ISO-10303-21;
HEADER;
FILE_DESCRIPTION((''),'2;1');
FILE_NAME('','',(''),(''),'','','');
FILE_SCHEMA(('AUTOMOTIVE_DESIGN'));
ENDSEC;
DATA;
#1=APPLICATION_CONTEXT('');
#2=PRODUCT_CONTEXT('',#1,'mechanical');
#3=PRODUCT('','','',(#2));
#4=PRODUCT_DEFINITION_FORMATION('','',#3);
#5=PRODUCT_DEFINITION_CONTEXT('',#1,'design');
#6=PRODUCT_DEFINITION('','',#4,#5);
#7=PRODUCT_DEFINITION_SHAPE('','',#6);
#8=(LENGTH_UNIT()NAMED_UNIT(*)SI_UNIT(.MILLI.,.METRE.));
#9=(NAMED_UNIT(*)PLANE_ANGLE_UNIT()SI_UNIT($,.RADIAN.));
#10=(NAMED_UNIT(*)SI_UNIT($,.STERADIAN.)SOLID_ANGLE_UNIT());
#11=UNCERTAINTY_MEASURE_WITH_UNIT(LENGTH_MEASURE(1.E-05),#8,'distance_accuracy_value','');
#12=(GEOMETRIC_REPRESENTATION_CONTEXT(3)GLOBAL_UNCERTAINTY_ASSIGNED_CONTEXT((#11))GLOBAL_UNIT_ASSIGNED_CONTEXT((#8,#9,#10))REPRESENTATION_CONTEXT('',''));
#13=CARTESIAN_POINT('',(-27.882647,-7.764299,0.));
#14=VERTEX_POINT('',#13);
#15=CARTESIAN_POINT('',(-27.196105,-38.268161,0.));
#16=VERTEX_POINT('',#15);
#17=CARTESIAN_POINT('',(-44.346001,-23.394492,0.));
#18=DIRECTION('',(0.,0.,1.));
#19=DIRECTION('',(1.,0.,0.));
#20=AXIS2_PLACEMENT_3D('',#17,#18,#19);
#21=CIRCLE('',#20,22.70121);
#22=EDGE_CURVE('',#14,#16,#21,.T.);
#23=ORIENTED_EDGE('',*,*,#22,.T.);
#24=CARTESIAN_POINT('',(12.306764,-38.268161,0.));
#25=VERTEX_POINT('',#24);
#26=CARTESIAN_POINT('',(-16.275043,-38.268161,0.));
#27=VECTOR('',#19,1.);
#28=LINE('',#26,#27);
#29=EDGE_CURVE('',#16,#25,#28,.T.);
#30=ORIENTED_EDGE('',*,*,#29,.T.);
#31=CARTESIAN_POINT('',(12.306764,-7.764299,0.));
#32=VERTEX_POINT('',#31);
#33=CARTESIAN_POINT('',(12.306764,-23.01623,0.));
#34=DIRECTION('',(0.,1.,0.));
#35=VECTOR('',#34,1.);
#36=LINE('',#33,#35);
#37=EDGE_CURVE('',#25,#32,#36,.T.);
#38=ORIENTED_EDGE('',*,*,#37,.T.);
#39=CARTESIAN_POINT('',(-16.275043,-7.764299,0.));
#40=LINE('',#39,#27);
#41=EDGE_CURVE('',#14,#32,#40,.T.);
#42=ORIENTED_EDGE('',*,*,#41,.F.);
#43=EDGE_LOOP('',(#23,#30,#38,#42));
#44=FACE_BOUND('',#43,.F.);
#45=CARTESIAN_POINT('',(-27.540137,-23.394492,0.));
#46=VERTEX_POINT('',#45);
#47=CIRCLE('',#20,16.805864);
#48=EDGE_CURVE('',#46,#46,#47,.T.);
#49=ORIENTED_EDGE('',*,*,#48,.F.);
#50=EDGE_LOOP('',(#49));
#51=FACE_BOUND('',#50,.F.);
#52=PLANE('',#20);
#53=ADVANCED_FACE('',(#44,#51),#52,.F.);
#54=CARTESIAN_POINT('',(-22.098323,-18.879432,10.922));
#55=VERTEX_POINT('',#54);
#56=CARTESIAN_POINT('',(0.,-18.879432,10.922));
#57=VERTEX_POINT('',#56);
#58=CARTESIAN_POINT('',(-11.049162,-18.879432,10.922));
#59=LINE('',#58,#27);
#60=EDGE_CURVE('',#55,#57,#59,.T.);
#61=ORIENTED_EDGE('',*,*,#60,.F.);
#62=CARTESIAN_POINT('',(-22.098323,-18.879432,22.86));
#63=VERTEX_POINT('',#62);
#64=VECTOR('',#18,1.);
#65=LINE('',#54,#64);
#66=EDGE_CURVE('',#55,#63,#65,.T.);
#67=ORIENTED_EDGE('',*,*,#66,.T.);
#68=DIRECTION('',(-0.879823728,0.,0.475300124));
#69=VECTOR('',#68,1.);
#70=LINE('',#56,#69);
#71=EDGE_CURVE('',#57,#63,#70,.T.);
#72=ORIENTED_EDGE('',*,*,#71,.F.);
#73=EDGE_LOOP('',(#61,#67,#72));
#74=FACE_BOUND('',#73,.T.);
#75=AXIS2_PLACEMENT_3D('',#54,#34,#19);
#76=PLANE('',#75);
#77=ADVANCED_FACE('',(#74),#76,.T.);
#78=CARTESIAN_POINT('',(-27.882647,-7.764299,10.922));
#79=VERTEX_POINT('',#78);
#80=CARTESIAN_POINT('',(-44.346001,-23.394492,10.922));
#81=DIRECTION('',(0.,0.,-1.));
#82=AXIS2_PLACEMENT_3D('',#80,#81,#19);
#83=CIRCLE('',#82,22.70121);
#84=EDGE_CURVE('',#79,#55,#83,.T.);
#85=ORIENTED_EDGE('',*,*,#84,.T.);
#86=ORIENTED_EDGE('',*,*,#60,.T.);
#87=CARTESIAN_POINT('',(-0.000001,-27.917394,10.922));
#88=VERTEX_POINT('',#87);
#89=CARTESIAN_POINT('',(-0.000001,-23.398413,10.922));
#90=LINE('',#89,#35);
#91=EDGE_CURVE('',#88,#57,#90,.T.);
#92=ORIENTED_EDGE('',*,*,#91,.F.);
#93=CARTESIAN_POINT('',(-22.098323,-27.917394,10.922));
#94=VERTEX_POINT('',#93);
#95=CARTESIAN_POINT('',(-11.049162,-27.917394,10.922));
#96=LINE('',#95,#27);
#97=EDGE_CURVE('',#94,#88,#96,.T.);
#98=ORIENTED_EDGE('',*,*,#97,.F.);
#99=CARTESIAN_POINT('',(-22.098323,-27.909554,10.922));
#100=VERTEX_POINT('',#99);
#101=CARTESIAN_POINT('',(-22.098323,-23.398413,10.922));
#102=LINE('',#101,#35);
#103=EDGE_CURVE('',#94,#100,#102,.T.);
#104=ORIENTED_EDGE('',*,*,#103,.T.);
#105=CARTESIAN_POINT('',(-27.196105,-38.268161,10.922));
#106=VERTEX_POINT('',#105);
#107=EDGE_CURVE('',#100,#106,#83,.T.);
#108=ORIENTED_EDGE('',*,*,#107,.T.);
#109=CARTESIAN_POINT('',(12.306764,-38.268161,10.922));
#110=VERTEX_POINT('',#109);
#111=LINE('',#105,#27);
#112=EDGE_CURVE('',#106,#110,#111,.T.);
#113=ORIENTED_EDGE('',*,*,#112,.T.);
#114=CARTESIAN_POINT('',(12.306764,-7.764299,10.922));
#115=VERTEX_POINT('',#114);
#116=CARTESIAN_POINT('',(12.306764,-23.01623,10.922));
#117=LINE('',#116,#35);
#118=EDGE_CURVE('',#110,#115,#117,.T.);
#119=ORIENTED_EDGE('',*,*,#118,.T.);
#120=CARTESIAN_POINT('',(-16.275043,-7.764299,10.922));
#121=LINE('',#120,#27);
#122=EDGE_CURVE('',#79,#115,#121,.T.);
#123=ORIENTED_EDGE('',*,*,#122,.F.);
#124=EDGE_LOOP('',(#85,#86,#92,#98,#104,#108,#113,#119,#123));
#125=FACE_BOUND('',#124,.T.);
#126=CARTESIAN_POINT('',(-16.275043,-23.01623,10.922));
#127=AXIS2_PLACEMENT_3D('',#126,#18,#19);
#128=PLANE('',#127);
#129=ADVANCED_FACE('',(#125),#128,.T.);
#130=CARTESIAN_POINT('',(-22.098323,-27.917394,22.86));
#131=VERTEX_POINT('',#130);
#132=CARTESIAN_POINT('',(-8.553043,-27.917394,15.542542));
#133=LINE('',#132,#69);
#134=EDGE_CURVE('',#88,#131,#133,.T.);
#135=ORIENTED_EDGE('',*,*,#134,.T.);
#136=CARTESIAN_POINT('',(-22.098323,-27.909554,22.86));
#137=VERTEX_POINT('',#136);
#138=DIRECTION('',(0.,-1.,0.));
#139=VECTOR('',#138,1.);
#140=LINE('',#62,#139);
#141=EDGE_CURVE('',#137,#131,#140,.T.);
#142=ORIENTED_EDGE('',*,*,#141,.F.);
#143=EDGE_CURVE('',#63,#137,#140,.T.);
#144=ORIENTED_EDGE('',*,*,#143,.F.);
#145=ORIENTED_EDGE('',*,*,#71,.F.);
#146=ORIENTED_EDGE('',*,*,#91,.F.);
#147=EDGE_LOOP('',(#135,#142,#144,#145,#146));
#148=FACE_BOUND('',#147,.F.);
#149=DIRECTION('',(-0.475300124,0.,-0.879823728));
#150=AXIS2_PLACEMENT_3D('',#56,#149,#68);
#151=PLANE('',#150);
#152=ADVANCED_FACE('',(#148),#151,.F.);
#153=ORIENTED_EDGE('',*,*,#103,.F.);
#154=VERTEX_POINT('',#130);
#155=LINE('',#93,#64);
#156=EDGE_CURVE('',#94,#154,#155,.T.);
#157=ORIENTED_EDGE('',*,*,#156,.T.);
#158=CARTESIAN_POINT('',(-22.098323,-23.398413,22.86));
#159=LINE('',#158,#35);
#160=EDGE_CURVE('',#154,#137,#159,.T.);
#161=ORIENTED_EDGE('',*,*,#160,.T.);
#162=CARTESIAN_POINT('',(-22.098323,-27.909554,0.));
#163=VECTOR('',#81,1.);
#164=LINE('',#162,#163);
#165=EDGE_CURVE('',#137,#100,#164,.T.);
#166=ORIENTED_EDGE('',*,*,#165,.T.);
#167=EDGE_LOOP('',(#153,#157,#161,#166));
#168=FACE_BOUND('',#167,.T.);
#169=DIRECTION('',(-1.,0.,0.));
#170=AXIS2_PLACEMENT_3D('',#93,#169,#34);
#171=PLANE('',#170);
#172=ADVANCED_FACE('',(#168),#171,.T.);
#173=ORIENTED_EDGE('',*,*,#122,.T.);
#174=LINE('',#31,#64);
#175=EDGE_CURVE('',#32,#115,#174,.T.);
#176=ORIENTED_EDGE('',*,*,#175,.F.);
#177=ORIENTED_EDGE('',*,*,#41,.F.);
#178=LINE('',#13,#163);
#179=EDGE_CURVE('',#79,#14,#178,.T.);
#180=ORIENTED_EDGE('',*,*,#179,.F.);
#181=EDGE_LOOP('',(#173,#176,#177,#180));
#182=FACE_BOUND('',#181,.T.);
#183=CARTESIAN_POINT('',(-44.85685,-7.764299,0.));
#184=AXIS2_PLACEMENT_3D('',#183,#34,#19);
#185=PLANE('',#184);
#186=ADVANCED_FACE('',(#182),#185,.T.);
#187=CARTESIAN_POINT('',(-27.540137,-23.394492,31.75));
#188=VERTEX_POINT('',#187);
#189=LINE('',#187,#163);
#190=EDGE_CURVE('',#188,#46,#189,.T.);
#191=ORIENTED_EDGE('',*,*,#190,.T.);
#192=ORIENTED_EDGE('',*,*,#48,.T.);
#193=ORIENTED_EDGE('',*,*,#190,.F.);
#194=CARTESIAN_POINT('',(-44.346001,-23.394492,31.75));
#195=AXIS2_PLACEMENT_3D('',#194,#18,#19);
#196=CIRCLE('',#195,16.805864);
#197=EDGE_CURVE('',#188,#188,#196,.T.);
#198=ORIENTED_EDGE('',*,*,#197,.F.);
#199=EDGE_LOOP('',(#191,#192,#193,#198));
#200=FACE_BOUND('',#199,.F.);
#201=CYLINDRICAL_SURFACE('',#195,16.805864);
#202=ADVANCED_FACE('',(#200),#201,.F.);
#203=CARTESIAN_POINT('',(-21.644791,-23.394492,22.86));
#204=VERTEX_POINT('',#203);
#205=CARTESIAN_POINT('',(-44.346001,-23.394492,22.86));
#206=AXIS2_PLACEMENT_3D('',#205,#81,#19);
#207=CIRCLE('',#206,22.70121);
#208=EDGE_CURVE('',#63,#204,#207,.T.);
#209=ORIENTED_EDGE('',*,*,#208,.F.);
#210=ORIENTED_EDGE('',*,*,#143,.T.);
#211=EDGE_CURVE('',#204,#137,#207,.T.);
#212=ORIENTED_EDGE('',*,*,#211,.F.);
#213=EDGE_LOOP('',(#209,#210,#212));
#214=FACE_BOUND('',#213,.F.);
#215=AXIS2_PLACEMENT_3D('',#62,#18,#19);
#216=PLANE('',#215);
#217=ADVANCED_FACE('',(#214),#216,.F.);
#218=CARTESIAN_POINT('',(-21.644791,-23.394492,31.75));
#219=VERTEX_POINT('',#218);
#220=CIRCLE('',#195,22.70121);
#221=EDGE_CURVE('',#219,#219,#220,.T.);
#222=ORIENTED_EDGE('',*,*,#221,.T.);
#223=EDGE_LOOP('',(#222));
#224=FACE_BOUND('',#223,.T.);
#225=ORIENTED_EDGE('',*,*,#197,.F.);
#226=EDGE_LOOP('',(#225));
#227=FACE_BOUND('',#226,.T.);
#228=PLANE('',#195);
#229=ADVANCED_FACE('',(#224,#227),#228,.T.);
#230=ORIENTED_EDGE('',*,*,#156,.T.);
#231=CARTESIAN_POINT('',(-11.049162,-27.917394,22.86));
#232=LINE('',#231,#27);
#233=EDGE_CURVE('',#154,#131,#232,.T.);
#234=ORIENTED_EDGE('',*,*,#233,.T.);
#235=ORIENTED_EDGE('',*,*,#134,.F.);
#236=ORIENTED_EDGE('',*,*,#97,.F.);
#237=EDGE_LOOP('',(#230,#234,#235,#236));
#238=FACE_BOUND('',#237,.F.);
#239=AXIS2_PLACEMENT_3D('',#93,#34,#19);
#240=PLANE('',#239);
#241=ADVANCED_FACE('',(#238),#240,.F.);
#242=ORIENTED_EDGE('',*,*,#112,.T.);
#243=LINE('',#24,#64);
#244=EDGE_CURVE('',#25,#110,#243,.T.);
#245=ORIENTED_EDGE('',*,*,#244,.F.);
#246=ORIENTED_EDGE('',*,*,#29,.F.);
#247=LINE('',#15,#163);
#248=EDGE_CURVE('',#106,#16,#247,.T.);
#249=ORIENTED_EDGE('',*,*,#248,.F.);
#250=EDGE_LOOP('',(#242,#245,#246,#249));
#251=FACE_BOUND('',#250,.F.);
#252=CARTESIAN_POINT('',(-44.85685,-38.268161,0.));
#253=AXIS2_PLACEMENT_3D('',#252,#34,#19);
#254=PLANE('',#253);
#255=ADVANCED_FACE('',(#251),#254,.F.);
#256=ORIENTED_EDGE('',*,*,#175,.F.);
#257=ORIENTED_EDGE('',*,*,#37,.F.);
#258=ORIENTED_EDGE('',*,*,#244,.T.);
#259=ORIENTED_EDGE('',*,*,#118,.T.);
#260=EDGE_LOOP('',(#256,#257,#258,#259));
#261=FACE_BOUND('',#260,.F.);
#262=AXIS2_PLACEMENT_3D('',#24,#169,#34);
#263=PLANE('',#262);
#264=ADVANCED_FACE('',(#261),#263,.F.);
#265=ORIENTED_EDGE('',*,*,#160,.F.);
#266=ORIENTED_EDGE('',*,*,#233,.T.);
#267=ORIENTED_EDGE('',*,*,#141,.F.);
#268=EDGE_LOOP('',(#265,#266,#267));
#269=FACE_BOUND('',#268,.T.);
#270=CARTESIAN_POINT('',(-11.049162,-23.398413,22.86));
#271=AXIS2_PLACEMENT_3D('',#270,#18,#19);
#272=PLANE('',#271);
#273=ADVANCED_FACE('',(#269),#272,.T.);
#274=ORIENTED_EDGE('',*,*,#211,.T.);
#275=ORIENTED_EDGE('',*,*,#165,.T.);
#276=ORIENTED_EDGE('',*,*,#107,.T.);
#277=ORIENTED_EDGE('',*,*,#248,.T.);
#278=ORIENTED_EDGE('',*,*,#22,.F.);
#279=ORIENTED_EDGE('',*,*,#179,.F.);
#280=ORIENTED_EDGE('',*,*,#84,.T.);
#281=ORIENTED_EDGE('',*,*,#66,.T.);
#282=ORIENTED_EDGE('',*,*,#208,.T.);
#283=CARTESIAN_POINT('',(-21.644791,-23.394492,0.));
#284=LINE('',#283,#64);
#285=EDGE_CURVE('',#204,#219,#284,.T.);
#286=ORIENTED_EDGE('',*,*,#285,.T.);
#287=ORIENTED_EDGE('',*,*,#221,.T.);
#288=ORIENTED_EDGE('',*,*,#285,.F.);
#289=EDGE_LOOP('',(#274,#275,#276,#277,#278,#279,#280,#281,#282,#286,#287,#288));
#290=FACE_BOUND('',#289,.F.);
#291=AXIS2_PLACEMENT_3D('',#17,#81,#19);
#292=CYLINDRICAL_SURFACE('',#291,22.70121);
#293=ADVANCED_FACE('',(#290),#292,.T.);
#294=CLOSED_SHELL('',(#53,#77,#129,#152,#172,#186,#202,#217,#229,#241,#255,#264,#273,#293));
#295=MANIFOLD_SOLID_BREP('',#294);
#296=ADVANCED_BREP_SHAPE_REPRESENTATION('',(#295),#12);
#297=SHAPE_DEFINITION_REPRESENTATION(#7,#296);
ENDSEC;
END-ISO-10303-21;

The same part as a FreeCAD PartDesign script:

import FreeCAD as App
import Part
import Sketcher
from FreeCAD import Vector
Q = App.Units.Quantity


def add_polygon(sketch, points):
    """Adds a closed chain of lines whose ends are joined by coincident constraints."""
    first, n = sketch.GeometryCount, len(points)
    for a, b in zip(points, points[1:] + points[:1]):
        sketch.addGeometry(Part.LineSegment(App.Vector(*a, 0), App.Vector(*b, 0)), False)
    for i in range(n):
        sketch.addConstraint(Sketcher.Constraint("Coincident", first + i, 2, first + (i + 1) % n, 1))

doc = App.newDocument("Part")
body = doc.addObject("PartDesign::Body", "Body")

# Sketch on XY plane
sketch1 = doc.addObject("Sketcher::SketchObject", "Sketch")
body.addObject(sketch1)
sketch1.AttachmentSupport = (doc.XY_Plane, [""])
sketch1.MapMode = "FlatFace"
sketch1.addGeometry(Part.Circle(Vector(-44, -23, 0), Vector(0, 0, 1), 23), False)
sketch1.addConstraint([
    Sketcher.Constraint("Diameter", 0, Q("45.40242 mm")),
    Sketcher.Constraint("DistanceX", 0, 3, -1, 1, Q("44.346001 mm")),
    Sketcher.Constraint("DistanceY", 0, 3, -1, 1, Q("23.394492 mm")),
])
pad1 = doc.addObject("PartDesign::Pad", "Pad")
body.addObject(pad1)
pad1.Profile = sketch1
pad1.Length = Q("1.25 in")

# Sketch on XY plane
sketch2 = doc.addObject("Sketcher::SketchObject", "Sketch001")
body.addObject(sketch2)
sketch2.AttachmentSupport = (doc.XY_Plane, [""])
sketch2.MapMode = "FlatFace"
add_polygon(sketch2, [(-45, -8), (-45, -38), (12, -38), (12, -8)])  # lines 0-3
sketch2.addConstraint([
    Sketcher.Constraint("Vertical", 0),
    Sketcher.Constraint("Horizontal", 1),
    Sketcher.Constraint("Vertical", 2),
    Sketcher.Constraint("Horizontal", 3),
    Sketcher.Constraint("DistanceY", 0, 2, 0, 1, Q("30.503861 mm")),
    Sketcher.Constraint("DistanceY", 2, 2, -1, 1, Q("7.764299 mm")),
    Sketcher.Constraint("DistanceX", 1, 1, 1, 2, Q("57.163614 mm")),
    Sketcher.Constraint("DistanceX", 0, 2, -1, 1, Q("44.85685 mm")),
])
pad2 = doc.addObject("PartDesign::Pad", "Pad001")
body.addObject(pad2)
pad2.Profile = sketch2
pad2.Length = Q("0.43 in")

# Sketch on XY plane
sketch3 = doc.addObject("Sketcher::SketchObject", "Sketch002")
body.addObject(sketch3)
sketch3.AttachmentSupport = (doc.XY_Plane, [""])
sketch3.MapMode = "FlatFace"
sketch3.AttachmentOffset = App.Placement(Vector(0, 0, 1.25 * 25.4), App.Rotation())
sketch3.addGeometry(Part.Circle(Vector(-44, -23, 0), Vector(0, 0, 1), 17), False)
sketch3.addConstraint([
    Sketcher.Constraint("Diameter", 0, Q("33.611728 mm")),
    Sketcher.Constraint("DistanceX", 0, 3, -1, 1, Q("44.346001 mm")),
    Sketcher.Constraint("DistanceY", 0, 3, -1, 1, Q("23.394492 mm")),
])
pocket1 = doc.addObject("PartDesign::Pocket", "Pocket")
body.addObject(pocket1)
pocket1.Profile = sketch3
pocket1.Length = Q("1.79 in")

# Sketch on XY plane
sketch4 = doc.addObject("Sketcher::SketchObject", "Sketch003")
body.addObject(sketch4)
sketch4.AttachmentSupport = (doc.XY_Plane, [""])
sketch4.MapMode = "FlatFace"
sketch4.AttachmentOffset = App.Placement(Vector(0, 0, 0.43 * 25.4), App.Rotation())
add_polygon(sketch4, [(-22, -19), (-22, -28), (0, -28), (0, -19)])  # lines 0-3
sketch4.addConstraint([
    Sketcher.Constraint("Vertical", 0),
    Sketcher.Constraint("Horizontal", 1),
    Sketcher.Constraint("Vertical", 2),
    Sketcher.Constraint("Horizontal", 3),
    Sketcher.Constraint("PointOnObject", 1, 2, -2),
    Sketcher.Constraint("DistanceX", 1, 1, 1, 2, Q("22.098323 mm")),
    Sketcher.Constraint("DistanceY", 0, 2, 0, 1, Q("9.037962 mm")),
    Sketcher.Constraint("DistanceY", 0, 2, -1, 1, Q("27.917394 mm")),
])
pad3 = doc.addObject("PartDesign::Pad", "Pad002")
body.addObject(pad3)
pad3.Profile = sketch4
pad3.Length = Q("0.47 in")

# Sketch on XZ plane
sketch5 = doc.addObject("Sketcher::SketchObject", "Sketch004")
body.addObject(sketch5)
sketch5.AttachmentSupport = (doc.XZ_Plane, [""])
sketch5.MapMode = "FlatFace"
sketch5.AttachmentOffset = App.Placement(Vector(0, 0, 18.879432), App.Rotation())
add_polygon(sketch5, [(0, 11), (-22, 23), (0, 23)])  # lines 0-2
sketch5.addConstraint([
    Sketcher.Constraint("Horizontal", 1),
    Sketcher.Constraint("Vertical", 2),
    Sketcher.Constraint("PointOnObject", 1, 2, -2),
    Sketcher.Constraint("DistanceY", 2, 2, 2, 1, Q("0.47 in")),
    Sketcher.Constraint("DistanceY", -1, 1, 0, 2, Q("0.9 in")),
    Sketcher.Constraint("Distance", 0, Q("25.116762 mm")),
])
pocket2 = doc.addObject("PartDesign::Pocket", "Pocket001")
body.addObject(pocket2)
pocket2.Profile = sketch5
pocket2.Length = Q("1 in")
pocket2.Reversed = True

doc.recompute()
